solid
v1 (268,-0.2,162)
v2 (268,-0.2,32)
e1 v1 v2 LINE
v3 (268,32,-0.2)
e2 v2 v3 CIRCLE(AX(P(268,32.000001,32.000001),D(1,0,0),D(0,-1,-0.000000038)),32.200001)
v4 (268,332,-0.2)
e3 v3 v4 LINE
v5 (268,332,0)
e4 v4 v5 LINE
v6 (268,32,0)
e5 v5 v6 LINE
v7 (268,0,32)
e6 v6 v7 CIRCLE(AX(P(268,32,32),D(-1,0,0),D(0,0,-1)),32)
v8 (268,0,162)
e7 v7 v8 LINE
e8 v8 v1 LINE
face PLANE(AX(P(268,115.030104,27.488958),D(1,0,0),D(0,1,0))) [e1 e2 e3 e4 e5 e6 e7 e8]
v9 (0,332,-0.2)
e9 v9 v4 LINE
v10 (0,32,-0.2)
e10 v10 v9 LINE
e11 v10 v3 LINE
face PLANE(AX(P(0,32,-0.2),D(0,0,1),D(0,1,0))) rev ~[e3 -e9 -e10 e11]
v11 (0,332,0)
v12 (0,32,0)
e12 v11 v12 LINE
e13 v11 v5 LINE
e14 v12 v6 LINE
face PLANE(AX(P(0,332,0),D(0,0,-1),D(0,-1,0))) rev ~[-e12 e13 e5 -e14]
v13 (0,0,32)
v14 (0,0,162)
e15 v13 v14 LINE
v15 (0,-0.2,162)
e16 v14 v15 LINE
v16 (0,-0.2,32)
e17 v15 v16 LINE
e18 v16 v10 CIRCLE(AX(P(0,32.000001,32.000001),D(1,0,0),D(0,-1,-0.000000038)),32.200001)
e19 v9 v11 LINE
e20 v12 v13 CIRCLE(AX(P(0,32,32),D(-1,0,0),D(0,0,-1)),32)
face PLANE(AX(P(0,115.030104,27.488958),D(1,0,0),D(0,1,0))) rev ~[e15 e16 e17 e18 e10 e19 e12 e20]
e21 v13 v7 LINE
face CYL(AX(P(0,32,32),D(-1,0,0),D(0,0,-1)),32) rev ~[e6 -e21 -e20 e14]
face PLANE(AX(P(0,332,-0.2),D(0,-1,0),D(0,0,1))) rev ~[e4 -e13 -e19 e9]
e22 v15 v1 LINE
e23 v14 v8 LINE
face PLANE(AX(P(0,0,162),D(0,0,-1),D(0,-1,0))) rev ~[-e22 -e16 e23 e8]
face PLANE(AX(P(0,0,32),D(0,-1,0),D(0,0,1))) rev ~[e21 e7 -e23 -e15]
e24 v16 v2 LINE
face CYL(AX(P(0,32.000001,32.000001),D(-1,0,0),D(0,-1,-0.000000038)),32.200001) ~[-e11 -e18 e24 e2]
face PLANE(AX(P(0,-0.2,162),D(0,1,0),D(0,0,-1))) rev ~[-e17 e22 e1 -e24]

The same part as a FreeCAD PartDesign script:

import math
import FreeCAD as App
import Part
import Sketcher
Q = App.Units.Quantity

doc = App.newDocument("Part")
body = doc.addObject("PartDesign::Body", "Body")

sketch1 = body.newObject("Sketcher::SketchObject", "Sketch")
sketch1.AttachmentSupport = (doc.getObject("YZ_Plane"), [""])
sketch1.MapMode = "FlatFace"
sketch1.addGeometry([
    Part.ArcOfCircle(Part.Circle(App.Vector(32, 32, 0), App.Vector(0, 0, 1), 32), math.radians(180), math.radians(270)),
    Part.LineSegment(App.Vector(0, 32, 0), App.Vector(0, 162, 0)),
    Part.LineSegment(App.Vector(0, 162, 0), App.Vector(-0.2, 162, 0)),
    Part.LineSegment(App.Vector(-0.2, 162, 0), App.Vector(-0.2, 32, 0)),
    Part.ArcOfCircle(Part.Circle(App.Vector(32, 32, 0), App.Vector(0, 0, 1), 32.2), math.radians(-180), math.radians(-90)),
    Part.LineSegment(App.Vector(32, -0.2, 0), App.Vector(332, -0.2, 0)),
    Part.LineSegment(App.Vector(332, -0.2, 0), App.Vector(332, 0, 0)),
    Part.LineSegment(App.Vector(332, 0, 0), App.Vector(32, 0, 0)),
], False)
sketch1.addConstraint([
    Sketcher.Constraint("Tangent", 0, 1, 1, 1),
    Sketcher.Constraint("Coincident", 1, 2, 2, 1),
    Sketcher.Constraint("Coincident", 2, 2, 3, 1),
    Sketcher.Constraint("Tangent", 3, 2, 4, 1),
    Sketcher.Constraint("Tangent", 4, 2, 5, 1),
    Sketcher.Constraint("Coincident", 5, 2, 6, 1),
    Sketcher.Constraint("Coincident", 6, 2, 7, 1),
    Sketcher.Constraint("Tangent", 7, 2, 0, 2),
    Sketcher.Constraint("Vertical", 1),
    Sketcher.Constraint("Horizontal", 2),
    Sketcher.Constraint("Vertical", 3),
    Sketcher.Constraint("Horizontal", 5),
    Sketcher.Constraint("Vertical", 6),
    Sketcher.Constraint("Horizontal", 7),
    Sketcher.Constraint("Coincident", 4, 3, 0, 3),
    Sketcher.Constraint("PointOnObject", 0, 1, -2),
    Sketcher.Constraint("PointOnObject", 6, 2, -1),
    Sketcher.Constraint("Radius", 0, Q("32 mm")),
    Sketcher.Constraint("Radius", 4, Q("32.200001 mm")),
    Sketcher.Constraint("DistanceX", 5, 1, 5, 2, Q("300 mm")),
    Sketcher.Constraint("DistanceY", 1, 1, 1, 2, Q("130 mm")),
])
pad1 = body.newObject("PartDesign::Pad", "Pad")
pad1.Profile = sketch1
pad1.Length = 268

doc.recompute()
